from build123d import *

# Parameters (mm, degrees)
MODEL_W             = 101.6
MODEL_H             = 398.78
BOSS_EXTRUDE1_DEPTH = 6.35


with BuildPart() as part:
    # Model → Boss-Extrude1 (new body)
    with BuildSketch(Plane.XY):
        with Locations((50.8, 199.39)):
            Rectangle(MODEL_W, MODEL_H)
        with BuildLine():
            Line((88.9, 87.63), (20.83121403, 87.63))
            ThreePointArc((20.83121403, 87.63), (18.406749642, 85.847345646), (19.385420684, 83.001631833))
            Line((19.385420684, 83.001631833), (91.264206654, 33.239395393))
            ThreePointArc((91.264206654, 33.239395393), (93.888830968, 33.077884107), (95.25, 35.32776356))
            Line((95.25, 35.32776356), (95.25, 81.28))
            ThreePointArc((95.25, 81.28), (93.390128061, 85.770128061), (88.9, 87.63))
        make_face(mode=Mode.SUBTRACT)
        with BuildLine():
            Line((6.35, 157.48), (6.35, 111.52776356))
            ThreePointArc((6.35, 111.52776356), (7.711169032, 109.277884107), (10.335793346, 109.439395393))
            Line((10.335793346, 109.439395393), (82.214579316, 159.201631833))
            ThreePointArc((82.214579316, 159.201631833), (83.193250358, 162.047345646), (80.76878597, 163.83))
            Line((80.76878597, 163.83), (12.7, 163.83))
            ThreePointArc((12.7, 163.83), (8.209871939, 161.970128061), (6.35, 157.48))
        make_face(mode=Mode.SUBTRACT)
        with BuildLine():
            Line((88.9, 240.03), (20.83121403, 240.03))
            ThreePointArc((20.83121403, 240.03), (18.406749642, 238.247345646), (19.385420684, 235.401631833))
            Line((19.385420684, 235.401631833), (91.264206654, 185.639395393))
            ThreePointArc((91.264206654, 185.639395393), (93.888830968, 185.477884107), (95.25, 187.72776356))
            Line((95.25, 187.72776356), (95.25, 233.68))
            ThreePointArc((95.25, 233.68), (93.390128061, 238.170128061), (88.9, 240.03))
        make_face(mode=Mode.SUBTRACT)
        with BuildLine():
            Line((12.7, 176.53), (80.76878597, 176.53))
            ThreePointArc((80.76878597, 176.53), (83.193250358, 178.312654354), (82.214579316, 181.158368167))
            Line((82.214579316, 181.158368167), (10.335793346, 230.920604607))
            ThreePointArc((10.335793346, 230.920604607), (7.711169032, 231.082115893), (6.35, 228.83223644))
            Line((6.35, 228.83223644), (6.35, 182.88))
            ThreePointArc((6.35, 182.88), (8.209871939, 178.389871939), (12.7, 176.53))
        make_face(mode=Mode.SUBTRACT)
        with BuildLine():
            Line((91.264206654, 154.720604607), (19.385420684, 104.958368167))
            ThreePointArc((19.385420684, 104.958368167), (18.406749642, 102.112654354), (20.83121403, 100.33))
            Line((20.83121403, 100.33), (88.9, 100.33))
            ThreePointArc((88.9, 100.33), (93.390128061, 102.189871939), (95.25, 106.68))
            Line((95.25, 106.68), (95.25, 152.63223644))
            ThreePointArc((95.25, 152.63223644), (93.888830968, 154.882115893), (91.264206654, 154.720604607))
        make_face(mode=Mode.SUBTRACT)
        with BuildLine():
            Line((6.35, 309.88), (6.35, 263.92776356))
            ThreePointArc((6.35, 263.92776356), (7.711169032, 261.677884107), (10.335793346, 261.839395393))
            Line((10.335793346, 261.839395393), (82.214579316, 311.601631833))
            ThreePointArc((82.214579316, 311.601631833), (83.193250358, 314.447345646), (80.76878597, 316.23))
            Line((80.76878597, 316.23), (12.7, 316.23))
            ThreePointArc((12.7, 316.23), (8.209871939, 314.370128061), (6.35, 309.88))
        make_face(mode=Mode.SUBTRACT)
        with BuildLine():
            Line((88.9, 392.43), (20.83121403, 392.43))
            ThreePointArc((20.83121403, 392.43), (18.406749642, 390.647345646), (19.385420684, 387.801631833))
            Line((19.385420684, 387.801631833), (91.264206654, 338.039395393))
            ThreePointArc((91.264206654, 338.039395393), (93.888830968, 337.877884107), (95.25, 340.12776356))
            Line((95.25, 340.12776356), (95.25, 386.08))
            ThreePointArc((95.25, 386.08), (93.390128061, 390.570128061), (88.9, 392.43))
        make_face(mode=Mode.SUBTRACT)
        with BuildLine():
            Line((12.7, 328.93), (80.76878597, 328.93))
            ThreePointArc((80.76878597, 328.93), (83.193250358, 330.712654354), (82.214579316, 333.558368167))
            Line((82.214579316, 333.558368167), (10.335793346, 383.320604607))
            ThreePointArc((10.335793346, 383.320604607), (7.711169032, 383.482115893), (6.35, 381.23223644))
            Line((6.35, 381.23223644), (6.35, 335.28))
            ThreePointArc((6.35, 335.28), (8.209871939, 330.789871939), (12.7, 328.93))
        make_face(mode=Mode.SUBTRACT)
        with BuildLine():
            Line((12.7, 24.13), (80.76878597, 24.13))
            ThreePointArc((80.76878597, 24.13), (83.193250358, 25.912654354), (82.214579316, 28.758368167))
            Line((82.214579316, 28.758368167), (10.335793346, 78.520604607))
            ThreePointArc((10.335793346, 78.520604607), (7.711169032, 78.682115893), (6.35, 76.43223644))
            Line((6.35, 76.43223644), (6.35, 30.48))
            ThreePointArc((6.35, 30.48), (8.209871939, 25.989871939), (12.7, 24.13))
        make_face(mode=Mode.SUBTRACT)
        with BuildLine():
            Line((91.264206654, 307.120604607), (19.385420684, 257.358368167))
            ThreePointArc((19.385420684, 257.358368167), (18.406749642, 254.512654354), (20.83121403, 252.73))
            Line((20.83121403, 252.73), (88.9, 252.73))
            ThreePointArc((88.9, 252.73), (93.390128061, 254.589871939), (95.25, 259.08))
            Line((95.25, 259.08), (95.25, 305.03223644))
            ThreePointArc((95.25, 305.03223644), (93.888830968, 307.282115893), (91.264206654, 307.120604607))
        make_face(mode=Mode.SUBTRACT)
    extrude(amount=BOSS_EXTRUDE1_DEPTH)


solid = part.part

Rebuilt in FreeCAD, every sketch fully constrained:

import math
import FreeCAD as App
import Part
import Sketcher

V = App.Vector
Q = App.Units.Quantity

doc = App.newDocument("Part")
body = doc.addObject("PartDesign::Body", "Body")

# Sketch on XY plane
sketch1 = body.newObject("Sketcher::SketchObject", "Sketch")
sketch1.AttachmentSupport = (doc.getObject("XY_Plane"), [""])
sketch1.MapMode = "FlatFace"
sketch1.addGeometry([
    Part.LineSegment(V(0, 398.78, 0), V(0, 0, 0)),  # 0
    Part.LineSegment(V(0, 0, 0), V(101.6, 0, 0)),  # 1
    Part.LineSegment(V(101.6, 0, 0), V(101.6, 398.78, 0)),  # 2
    Part.LineSegment(V(101.6, 398.78, 0), V(0, 398.78, 0)),  # 3
    Part.LineSegment(V(80.768786, 24.13, 0), V(12.7, 24.13, 0)),  # 4
    Part.ArcOfCircle(Part.Circle(V(12.7, 30.48, 0), V(0, 0, 1), 6.35), math.radians(180), math.radians(270)),  # 5
    Part.LineSegment(V(6.35, 30.48, 0), V(6.35, 76.432236, 0)),  # 6
    Part.ArcOfCircle(Part.Circle(V(8.89, 76.432236, 0), V(0, 0, 1), 2.54), math.radians(55.304846), math.radians(180)),  # 7
    Part.LineSegment(V(10.335793, 78.520605, 0), V(82.214579, 28.758368, 0)),  # 8
    Part.ArcOfCircle(Part.Circle(V(80.768786, 26.67, 0), V(0, 0, 1), 2.54), math.radians(-90), math.radians(55.304846)),  # 9
    Part.LineSegment(V(6.35, 111.527764, 0), V(6.35, 157.48, 0)),  # 10
    Part.ArcOfCircle(Part.Circle(V(12.7, 157.48, 0), V(0, 0, 1), 6.35), math.radians(90), math.radians(180)),  # 11
    Part.LineSegment(V(12.7, 163.83, 0), V(80.768786, 163.83, 0)),  # 12
    Part.ArcOfCircle(Part.Circle(V(80.768786, 161.29, 0), V(0, 0, 1), 2.54), math.radians(-55.304846), math.radians(90)),  # 13
    Part.LineSegment(V(82.214579, 159.201632, 0), V(10.335793, 109.439395, 0)),  # 14
    Part.ArcOfCircle(Part.Circle(V(8.89, 111.527764, 0), V(0, 0, 1), 2.54), math.radians(180), math.radians(304.695154)),  # 15
    Part.LineSegment(V(80.768786, 176.53, 0), V(12.7, 176.53, 0)),  # 16
    Part.ArcOfCircle(Part.Circle(V(12.7, 182.88, 0), V(0, 0, 1), 6.35), math.radians(180), math.radians(270)),  # 17
    Part.LineSegment(V(6.35, 182.88, 0), V(6.35, 228.832236, 0)),  # 18
    Part.ArcOfCircle(Part.Circle(V(8.89, 228.832236, 0), V(0, 0, 1), 2.54), math.radians(55.304846), math.radians(180)),  # 19
    Part.LineSegment(V(10.335793, 230.920605, 0), V(82.214579, 181.158368, 0)),  # 20
    Part.ArcOfCircle(Part.Circle(V(80.768786, 179.07, 0), V(0, 0, 1), 2.54), math.radians(-90), math.radians(55.304846)),  # 21
    Part.LineSegment(V(20.831214, 87.63, 0), V(88.9, 87.63, 0)),  # 22
    Part.ArcOfCircle(Part.Circle(V(88.9, 81.28, 0), V(0, 0, 1), 6.35), math.radians(0), math.radians(90)),  # 23
    Part.LineSegment(V(95.25, 81.28, 0), V(95.25, 35.327764, 0)),  # 24
    Part.ArcOfCircle(Part.Circle(V(92.71, 35.327764, 0), V(0, 0, 1), 2.54), math.radians(-124.695154), math.radians(0)),  # 25
    Part.LineSegment(V(91.264207, 33.239395, 0), V(19.385421, 83.001632, 0)),  # 26
    Part.ArcOfCircle(Part.Circle(V(20.831214, 85.09, 0), V(0, 0, 1), 2.54), math.radians(90), math.radians(235.304846)),  # 27
    Part.LineSegment(V(19.385421, 104.958368, 0), V(91.264207, 154.720605, 0)),  # 28
    Part.ArcOfCircle(Part.Circle(V(92.71, 152.632236, 0), V(0, 0, 1), 2.54), math.radians(0), math.radians(124.695154)),  # 29
    Part.LineSegment(V(95.25, 152.632236, 0), V(95.25, 106.68, 0)),  # 30
    Part.ArcOfCircle(Part.Circle(V(88.9, 106.68, 0), V(0, 0, 1), 6.35), math.radians(-90), math.radians(0)),  # 31
    Part.LineSegment(V(88.9, 100.33, 0), V(20.831214, 100.33, 0)),  # 32
    Part.ArcOfCircle(Part.Circle(V(20.831214, 102.87, 0), V(0, 0, 1), 2.54), math.radians(124.695154), math.radians(270)),  # 33
    Part.LineSegment(V(6.35, 263.927764, 0), V(6.35, 309.88, 0)),  # 34
    Part.ArcOfCircle(Part.Circle(V(12.7, 309.88, 0), V(0, 0, 1), 6.35), math.radians(90), math.radians(180)),  # 35
    Part.LineSegment(V(12.7, 316.23, 0), V(80.768786, 316.23, 0)),  # 36
    Part.ArcOfCircle(Part.Circle(V(80.768786, 313.69, 0), V(0, 0, 1), 2.54), math.radians(-55.304846), math.radians(90)),  # 37
    Part.LineSegment(V(82.214579, 311.601632, 0), V(10.335793, 261.839395, 0)),  # 38
    Part.ArcOfCircle(Part.Circle(V(8.89, 263.927764, 0), V(0, 0, 1), 2.54), math.radians(180), math.radians(304.695154)),  # 39
    Part.LineSegment(V(80.768786, 328.93, 0), V(12.7, 328.93, 0)),  # 40
    Part.ArcOfCircle(Part.Circle(V(12.7, 335.28, 0), V(0, 0, 1), 6.35), math.radians(180), math.radians(270)),  # 41
    Part.LineSegment(V(6.35, 335.28, 0), V(6.35, 381.232236, 0)),  # 42
    Part.ArcOfCircle(Part.Circle(V(8.89, 381.232236, 0), V(0, 0, 1), 2.54), math.radians(55.304846), math.radians(180)),  # 43
    Part.LineSegment(V(10.335793, 383.320605, 0), V(82.214579, 333.558368, 0)),  # 44
    Part.ArcOfCircle(Part.Circle(V(80.768786, 331.47, 0), V(0, 0, 1), 2.54), math.radians(-90), math.radians(55.304846)),  # 45
    Part.LineSegment(V(20.831214, 240.03, 0), V(88.9, 240.03, 0)),  # 46
    Part.ArcOfCircle(Part.Circle(V(88.9, 233.68, 0), V(0, 0, 1), 6.35), math.radians(0), math.radians(90)),  # 47
    Part.LineSegment(V(95.25, 233.68, 0), V(95.25, 187.727764, 0)),  # 48
    Part.ArcOfCircle(Part.Circle(V(92.71, 187.727764, 0), V(0, 0, 1), 2.54), math.radians(-124.695154), math.radians(0)),  # 49
    Part.LineSegment(V(91.264207, 185.639395, 0), V(19.385421, 235.401632, 0)),  # 50
    Part.ArcOfCircle(Part.Circle(V(20.831214, 237.49, 0), V(0, 0, 1), 2.54), math.radians(90), math.radians(235.304846)),  # 51
    Part.LineSegment(V(19.385421, 257.358368, 0), V(91.264207, 307.120605, 0)),  # 52
    Part.ArcOfCircle(Part.Circle(V(92.71, 305.032236, 0), V(0, 0, 1), 2.54), math.radians(0), math.radians(124.695154)),  # 53
    Part.LineSegment(V(95.25, 305.032236, 0), V(95.25, 259.08, 0)),  # 54
    Part.ArcOfCircle(Part.Circle(V(88.9, 259.08, 0), V(0, 0, 1), 6.35), math.radians(-90), math.radians(0)),  # 55
    Part.LineSegment(V(88.9, 252.73, 0), V(20.831214, 252.73, 0)),  # 56
    Part.ArcOfCircle(Part.Circle(V(20.831214, 255.27, 0), V(0, 0, 1), 2.54), math.radians(124.695154), math.radians(270)),  # 57
    Part.LineSegment(V(20.831214, 392.43, 0), V(88.9, 392.43, 0)),  # 58
    Part.ArcOfCircle(Part.Circle(V(88.9, 386.08, 0), V(0, 0, 1), 6.35), math.radians(0), math.radians(90)),  # 59
    Part.LineSegment(V(95.25, 386.08, 0), V(95.25, 340.127764, 0)),  # 60
    Part.ArcOfCircle(Part.Circle(V(92.71, 340.127764, 0), V(0, 0, 1), 2.54), math.radians(-124.695154), math.radians(0)),  # 61
    Part.LineSegment(V(91.264207, 338.039395, 0), V(19.385421, 387.801632, 0)),  # 62
    Part.ArcOfCircle(Part.Circle(V(20.831214, 389.89, 0), V(0, 0, 1), 2.54), math.radians(90), math.radians(235.304846)),  # 63
], False)
sketch1.addConstraint([
    Sketcher.Constraint("Coincident", 0, 2, 1, 1),
    Sketcher.Constraint("Coincident", 1, 2, 2, 1),
    Sketcher.Constraint("Coincident", 2, 2, 3, 1),
    Sketcher.Constraint("Coincident", 3, 2, 0, 1),
    Sketcher.Constraint("Tangent", 4, 2, 5, 2),
    Sketcher.Constraint("Tangent", 5, 1, 6, 1),
    Sketcher.Constraint("Tangent", 6, 2, 7, 2),
    Sketcher.Constraint("Tangent", 7, 1, 8, 1),
    Sketcher.Constraint("Tangent", 8, 2, 9, 2),
    Sketcher.Constraint("Tangent", 9, 1, 4, 1),
    Sketcher.Constraint("Tangent", 10, 2, 11, 2),
    Sketcher.Constraint("Tangent", 11, 1, 12, 1),
    Sketcher.Constraint("Tangent", 12, 2, 13, 2),
    Sketcher.Constraint("Tangent", 13, 1, 14, 1),
    Sketcher.Constraint("Tangent", 14, 2, 15, 2),
    Sketcher.Constraint("Tangent", 15, 1, 10, 1),
    Sketcher.Constraint("Tangent", 16, 2, 17, 2),
    Sketcher.Constraint("Tangent", 17, 1, 18, 1),
    Sketcher.Constraint("Tangent", 18, 2, 19, 2),
    Sketcher.Constraint("Tangent", 19, 1, 20, 1),
    Sketcher.Constraint("Tangent", 20, 2, 21, 2),
    Sketcher.Constraint("Tangent", 21, 1, 16, 1),
    Sketcher.Constraint("Tangent", 22, 2, 23, 2),
    Sketcher.Constraint("Tangent", 23, 1, 24, 1),
    Sketcher.Constraint("Tangent", 24, 2, 25, 2),
    Sketcher.Constraint("Tangent", 25, 1, 26, 1),
    Sketcher.Constraint("Tangent", 26, 2, 27, 2),
    Sketcher.Constraint("Tangent", 27, 1, 22, 1),
    Sketcher.Constraint("Tangent", 28, 2, 29, 2),
    Sketcher.Constraint("Tangent", 29, 1, 30, 1),
    Sketcher.Constraint("Tangent", 30, 2, 31, 2),
    Sketcher.Constraint("Tangent", 31, 1, 32, 1),
    Sketcher.Constraint("Tangent", 32, 2, 33, 2),
    Sketcher.Constraint("Tangent", 33, 1, 28, 1),
    Sketcher.Constraint("Tangent", 34, 2, 35, 2),
    Sketcher.Constraint("Tangent", 35, 1, 36, 1),
    Sketcher.Constraint("Tangent", 36, 2, 37, 2),
    Sketcher.Constraint("Tangent", 37, 1, 38, 1),
    Sketcher.Constraint("Tangent", 38, 2, 39, 2),
    Sketcher.Constraint("Tangent", 39, 1, 34, 1),
    Sketcher.Constraint("Tangent", 40, 2, 41, 2),
    Sketcher.Constraint("Tangent", 41, 1, 42, 1),
    Sketcher.Constraint("Tangent", 42, 2, 43, 2),
    Sketcher.Constraint("Tangent", 43, 1, 44, 1),
    Sketcher.Constraint("Tangent", 44, 2, 45, 2),
    Sketcher.Constraint("Tangent", 45, 1, 40, 1),
    Sketcher.Constraint("Tangent", 46, 2, 47, 2),
    Sketcher.Constraint("Tangent", 47, 1, 48, 1),
    Sketcher.Constraint("Tangent", 48, 2, 49, 2),
    Sketcher.Constraint("Tangent", 49, 1, 50, 1),
    Sketcher.Constraint("Tangent", 50, 2, 51, 2),
    Sketcher.Constraint("Tangent", 51, 1, 46, 1),
    Sketcher.Constraint("Tangent", 52, 2, 53, 2),
    Sketcher.Constraint("Tangent", 53, 1, 54, 1),
    Sketcher.Constraint("Tangent", 54, 2, 55, 2),
    Sketcher.Constraint("Tangent", 55, 1, 56, 1),
    Sketcher.Constraint("Tangent", 56, 2, 57, 2),
    Sketcher.Constraint("Tangent", 57, 1, 52, 1),
    Sketcher.Constraint("Tangent", 58, 2, 59, 2),
    Sketcher.Constraint("Tangent", 59, 1, 60, 1),
    Sketcher.Constraint("Tangent", 60, 2, 61, 2),
    Sketcher.Constraint("Tangent", 61, 1, 62, 1),
    Sketcher.Constraint("Tangent", 62, 2, 63, 2),
    Sketcher.Constraint("Tangent", 63, 1, 58, 1),
    Sketcher.Constraint("Vertical", 0),
    Sketcher.Constraint("Horizontal", 1),
    Sketcher.Constraint("Vertical", 2),
    Sketcher.Constraint("Horizontal", 3),
    Sketcher.Constraint("Horizontal", 4),
    Sketcher.Constraint("Vertical", 6),
    Sketcher.Constraint("Vertical", 10),
    Sketcher.Constraint("Horizontal", 12),
    Sketcher.Constraint("Horizontal", 16),
    Sketcher.Constraint("Vertical", 18),
    Sketcher.Constraint("Horizontal", 22),
    Sketcher.Constraint("Vertical", 24),
    Sketcher.Constraint("Vertical", 30),
    Sketcher.Constraint("Horizontal", 32),
    Sketcher.Constraint("Vertical", 34),
    Sketcher.Constraint("Horizontal", 36),
    Sketcher.Constraint("Horizontal", 40),
    Sketcher.Constraint("Vertical", 42),
    Sketcher.Constraint("Horizontal", 46),
    Sketcher.Constraint("Vertical", 48),
    Sketcher.Constraint("Vertical", 54),
    Sketcher.Constraint("Horizontal", 56),
    Sketcher.Constraint("Horizontal", 58),
    Sketcher.Constraint("Vertical", 60),
    Sketcher.Constraint("Coincident", 0, 2, -1, 1),
    Sketcher.Constraint("Equal", 7, 9),
    Sketcher.Constraint("Equal", 5, 11),
    Sketcher.Constraint("Equal", 9, 13),
    Sketcher.Constraint("Equal", 13, 15),
    Sketcher.Constraint("Equal", 11, 17),
    Sketcher.Constraint("Equal", 15, 19),
    Sketcher.Constraint("Equal", 19, 21),
    Sketcher.Constraint("Equal", 17, 23),
    Sketcher.Constraint("Equal", 21, 25),
    Sketcher.Constraint("Equal", 25, 27),
    Sketcher.Constraint("Equal", 27, 29),
    Sketcher.Constraint("Equal", 23, 31),
    Sketcher.Constraint("Equal", 29, 33),
    Sketcher.Constraint("Equal", 31, 35),
    Sketcher.Constraint("Equal", 33, 37),
    Sketcher.Constraint("Equal", 37, 39),
    Sketcher.Constraint("Equal", 35, 41),
    Sketcher.Constraint("Equal", 39, 43),
    Sketcher.Constraint("Equal", 43, 45),
    Sketcher.Constraint("Equal", 41, 47),
    Sketcher.Constraint("Equal", 45, 49),
    Sketcher.Constraint("Equal", 49, 51),
    Sketcher.Constraint("Equal", 51, 53),
    Sketcher.Constraint("Equal", 47, 55),
    Sketcher.Constraint("Equal", 53, 57),
    Sketcher.Constraint("Equal", 55, 59),
    Sketcher.Constraint("Equal", 57, 61),
    Sketcher.Constraint("Equal", 61, 63),
    Sketcher.Constraint("Parallel", 8, 20),
    Sketcher.Constraint("Parallel", 20, 26),
    Sketcher.Constraint("Parallel", 14, 28),
    Sketcher.Constraint("Parallel", 28, 38),
    Sketcher.Constraint("Parallel", 26, 44),
    Sketcher.Constraint("Parallel", 44, 50),
    Sketcher.Constraint("Parallel", 38, 52),
    Sketcher.Constraint("Parallel", 50, 62),
    Sketcher.Constraint("Vertical", 5, 3, 11, 3),
    Sketcher.Constraint("Vertical", 9, 3, 13, 3),
    Sketcher.Constraint("Vertical", 11, 3, 17, 3),
    Sketcher.Constraint("Vertical", 13, 3, 21, 3),
    Sketcher.Constraint("Vertical", 25, 3, 29, 3),
    Sketcher.Constraint("Vertical", 27, 3, 33, 3),
    Sketcher.Constraint("Vertical", 17, 3, 35, 3),
    Sketcher.Constraint("Vertical", 21, 3, 37, 3),
    Sketcher.Constraint("Vertical", 35, 3, 41, 3),
    Sketcher.Constraint("Vertical", 37, 3, 45, 3),
    Sketcher.Constraint("Vertical", 31, 3, 47, 3),
    Sketcher.Constraint("Vertical", 33, 3, 51, 3),
    Sketcher.Constraint("Vertical", 49, 3, 53, 3),
    Sketcher.Constraint("Vertical", 51, 3, 57, 3),
    Sketcher.Constraint("Vertical", 55, 3, 59, 3),
    Sketcher.Constraint("Vertical", 57, 3, 63, 3),
    Sketcher.Constraint("Vertical", 8, 2, 13, 1),
    Sketcher.Constraint("Equal", 16, 22),
    Sketcher.Constraint("Radius", 7, Q("0.1 in")),
    Sketcher.Constraint("DistanceX", 1, 1, 1, 2, Q("4 in")),
    Sketcher.Constraint("Radius", 5, Q("0.25 in")),
    Sketcher.Constraint("DistanceY", 0, 2, 0, 1, Q("15.7 in")),
    Sketcher.Constraint("DistanceX", -1, 1, 5, 3, Q("0.5 in")),
    Sketcher.Constraint("DistanceY", -1, 1, 5, 3, Q("1.2 in")),
    Sketcher.Constraint("DistanceY", -1, 1, 11, 3, Q("6.2 in")),
    Sketcher.Constraint("DistanceY", -1, 1, 17, 3, Q("7.2 in")),
    Sketcher.Constraint("DistanceX", -1, 1, 23, 3, Q("3.5 in")),
    Sketcher.Constraint("DistanceY", -1, 1, 23, 3, Q("3.2 in")),
    Sketcher.Constraint("DistanceY", -1, 1, 31, 3, Q("4.2 in")),
    Sketcher.Constraint("DistanceY", -1, 1, 35, 3, Q("12.2 in")),
    Sketcher.Constraint("DistanceY", -1, 1, 41, 3, Q("13.2 in")),
    Sketcher.Constraint("DistanceY", -1, 1, 47, 3, Q("9.2 in")),
    Sketcher.Constraint("DistanceY", -1, 1, 55, 3, Q("10.2 in")),
    Sketcher.Constraint("DistanceY", -1, 1, 59, 3, Q("15.2 in")),
    Sketcher.Constraint("Distance", 8, Q("87.423338 mm")),
    Sketcher.Constraint("DistanceX", 4, 2, 4, 1, Q("68.068786 mm")),
])
pad1 = body.newObject("PartDesign::Pad", "Pad")
pad1.Profile = sketch1
pad1.Length = Q("0.25 in")

doc.recompute()
